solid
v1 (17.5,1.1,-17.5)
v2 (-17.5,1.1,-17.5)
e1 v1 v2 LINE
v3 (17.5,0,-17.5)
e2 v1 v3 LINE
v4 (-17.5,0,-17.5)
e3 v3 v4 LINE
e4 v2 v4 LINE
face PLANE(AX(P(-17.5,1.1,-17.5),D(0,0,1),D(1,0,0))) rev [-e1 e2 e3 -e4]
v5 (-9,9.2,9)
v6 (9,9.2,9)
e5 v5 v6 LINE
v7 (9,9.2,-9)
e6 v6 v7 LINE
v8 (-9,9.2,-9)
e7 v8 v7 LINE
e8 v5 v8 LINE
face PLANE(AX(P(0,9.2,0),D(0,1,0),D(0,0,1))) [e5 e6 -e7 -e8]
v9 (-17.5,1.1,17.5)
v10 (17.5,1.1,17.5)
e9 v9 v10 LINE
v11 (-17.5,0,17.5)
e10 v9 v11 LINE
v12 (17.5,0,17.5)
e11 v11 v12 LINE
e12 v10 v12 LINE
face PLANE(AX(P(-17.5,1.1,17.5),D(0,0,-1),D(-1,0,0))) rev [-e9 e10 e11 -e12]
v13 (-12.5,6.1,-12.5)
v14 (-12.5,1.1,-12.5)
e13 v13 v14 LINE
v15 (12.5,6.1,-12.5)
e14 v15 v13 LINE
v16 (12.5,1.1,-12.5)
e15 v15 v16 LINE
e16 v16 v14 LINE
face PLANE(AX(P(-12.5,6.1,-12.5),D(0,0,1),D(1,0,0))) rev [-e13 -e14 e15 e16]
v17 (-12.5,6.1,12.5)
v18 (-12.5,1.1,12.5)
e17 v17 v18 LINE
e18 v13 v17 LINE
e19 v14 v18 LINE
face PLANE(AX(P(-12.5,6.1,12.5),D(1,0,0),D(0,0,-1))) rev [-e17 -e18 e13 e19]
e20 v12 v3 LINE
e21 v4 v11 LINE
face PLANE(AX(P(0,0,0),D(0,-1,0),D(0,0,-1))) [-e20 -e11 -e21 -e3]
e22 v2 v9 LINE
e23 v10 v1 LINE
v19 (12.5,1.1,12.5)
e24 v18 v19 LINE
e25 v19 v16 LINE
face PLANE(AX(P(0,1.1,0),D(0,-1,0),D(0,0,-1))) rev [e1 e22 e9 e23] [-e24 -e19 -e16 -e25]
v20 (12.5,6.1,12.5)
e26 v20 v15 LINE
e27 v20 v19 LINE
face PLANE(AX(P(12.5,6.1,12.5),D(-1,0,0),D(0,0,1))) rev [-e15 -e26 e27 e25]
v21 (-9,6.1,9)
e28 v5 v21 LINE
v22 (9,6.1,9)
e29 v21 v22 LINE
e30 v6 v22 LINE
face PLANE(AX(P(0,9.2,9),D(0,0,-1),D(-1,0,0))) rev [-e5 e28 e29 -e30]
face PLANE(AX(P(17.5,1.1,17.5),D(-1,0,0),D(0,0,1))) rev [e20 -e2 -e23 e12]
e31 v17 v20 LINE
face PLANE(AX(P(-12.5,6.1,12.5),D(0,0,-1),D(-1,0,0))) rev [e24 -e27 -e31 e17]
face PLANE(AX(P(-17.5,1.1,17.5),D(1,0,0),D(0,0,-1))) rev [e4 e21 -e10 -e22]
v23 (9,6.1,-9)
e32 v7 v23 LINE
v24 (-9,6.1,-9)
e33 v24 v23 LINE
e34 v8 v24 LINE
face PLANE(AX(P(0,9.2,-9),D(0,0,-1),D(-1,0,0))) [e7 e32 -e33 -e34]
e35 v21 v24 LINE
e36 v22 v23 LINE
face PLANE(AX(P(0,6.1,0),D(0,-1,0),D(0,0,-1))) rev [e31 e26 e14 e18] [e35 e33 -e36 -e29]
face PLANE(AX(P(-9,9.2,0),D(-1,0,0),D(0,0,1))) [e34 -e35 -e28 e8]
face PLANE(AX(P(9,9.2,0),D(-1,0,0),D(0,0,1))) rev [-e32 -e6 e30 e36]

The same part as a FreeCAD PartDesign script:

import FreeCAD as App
import Part
import Sketcher

V = App.Vector
Q = App.Units.Quantity


def add_polygon(sketch, points):
    """Adds a closed chain of lines whose ends are joined by coincident constraints."""
    first, n = sketch.GeometryCount, len(points)
    for a, b in zip(points, points[1:] + points[:1]):
        sketch.addGeometry(Part.LineSegment(App.Vector(*a, 0), App.Vector(*b, 0)), False)
    for i in range(n):
        sketch.addConstraint(Sketcher.Constraint("Coincident", first + i, 2, first + (i + 1) % n, 1))

doc = App.newDocument("Part")
body = doc.addObject("PartDesign::Body", "Body")

# Sketch on XZ plane
sketch1 = body.newObject("Sketcher::SketchObject", "Sketch")
sketch1.AttachmentSupport = (doc.getObject("XZ_Plane"), [""])
sketch1.MapMode = "FlatFace"
add_polygon(sketch1, [(-18, -18), (-18, 18), (18, 18), (18, -18)])  # lines 0-3
sketch1.addConstraint(Sketcher.Constraint("Vertical", 0))
sketch1.addConstraint(Sketcher.Constraint("Horizontal", 1))
sketch1.addConstraint(Sketcher.Constraint("Vertical", 2))
sketch1.addConstraint(Sketcher.Constraint("Horizontal", 3))
sketch1.addConstraint(Sketcher.Constraint("Symmetric", 0, 2, 2, 2, -1, 1))
sketch1.addConstraint(Sketcher.Constraint("Equal", 3, 0))
sketch1.addConstraint(Sketcher.Constraint("DistanceX", 1, 1, 1, 2, Q("35 mm")))
pad1 = body.newObject("PartDesign::Pad", "Pad")
pad1.Profile = sketch1
pad1.Length = 1.1
pad1.Reversed = True

# Sketch on XZ plane
sketch2 = body.newObject("Sketcher::SketchObject", "Sketch001")
sketch2.AttachmentSupport = (doc.getObject("XZ_Plane"), [""])
sketch2.MapMode = "FlatFace"
sketch2.AttachmentOffset = App.Placement(V(0, 0, -1.1), App.Rotation())
add_polygon(sketch2, [(-12, -12), (-12, 12), (12, 12), (12, -12)])  # lines 0-3
sketch2.addConstraint(Sketcher.Constraint("Vertical", 0))
sketch2.addConstraint(Sketcher.Constraint("Horizontal", 1))
sketch2.addConstraint(Sketcher.Constraint("Vertical", 2))
sketch2.addConstraint(Sketcher.Constraint("Horizontal", 3))
sketch2.addConstraint(Sketcher.Constraint("Symmetric", 0, 2, 2, 2, -1, 1))
sketch2.addConstraint(Sketcher.Constraint("Equal", 3, 0))
sketch2.addConstraint(Sketcher.Constraint("DistanceX", 1, 1, 1, 2, Q("25 mm")))
pad2 = body.newObject("PartDesign::Pad", "Pad001")
pad2.Profile = sketch2
pad2.Length = 5
pad2.Reversed = True

# Sketch on XZ plane
sketch3 = body.newObject("Sketcher::SketchObject", "Sketch002")
sketch3.AttachmentSupport = (doc.getObject("XZ_Plane"), [""])
sketch3.MapMode = "FlatFace"
sketch3.AttachmentOffset = App.Placement(V(0, 0, -6.1), App.Rotation())
add_polygon(sketch3, [(-9, -9), (-9, 9), (9, 9), (9, -9)])  # lines 0-3
sketch3.addConstraint(Sketcher.Constraint("Vertical", 0))
sketch3.addConstraint(Sketcher.Constraint("Horizontal", 1))
sketch3.addConstraint(Sketcher.Constraint("Vertical", 2))
sketch3.addConstraint(Sketcher.Constraint("Horizontal", 3))
sketch3.addConstraint(Sketcher.Constraint("Symmetric", 0, 2, 2, 2, -1, 1))
sketch3.addConstraint(Sketcher.Constraint("Equal", 3, 0))
sketch3.addConstraint(Sketcher.Constraint("DistanceX", 1, 1, 1, 2, Q("18 mm")))
pad3 = body.newObject("PartDesign::Pad", "Pad002")
pad3.Profile = sketch3
pad3.Length = 3.1
pad3.Reversed = True

doc.recompute()
